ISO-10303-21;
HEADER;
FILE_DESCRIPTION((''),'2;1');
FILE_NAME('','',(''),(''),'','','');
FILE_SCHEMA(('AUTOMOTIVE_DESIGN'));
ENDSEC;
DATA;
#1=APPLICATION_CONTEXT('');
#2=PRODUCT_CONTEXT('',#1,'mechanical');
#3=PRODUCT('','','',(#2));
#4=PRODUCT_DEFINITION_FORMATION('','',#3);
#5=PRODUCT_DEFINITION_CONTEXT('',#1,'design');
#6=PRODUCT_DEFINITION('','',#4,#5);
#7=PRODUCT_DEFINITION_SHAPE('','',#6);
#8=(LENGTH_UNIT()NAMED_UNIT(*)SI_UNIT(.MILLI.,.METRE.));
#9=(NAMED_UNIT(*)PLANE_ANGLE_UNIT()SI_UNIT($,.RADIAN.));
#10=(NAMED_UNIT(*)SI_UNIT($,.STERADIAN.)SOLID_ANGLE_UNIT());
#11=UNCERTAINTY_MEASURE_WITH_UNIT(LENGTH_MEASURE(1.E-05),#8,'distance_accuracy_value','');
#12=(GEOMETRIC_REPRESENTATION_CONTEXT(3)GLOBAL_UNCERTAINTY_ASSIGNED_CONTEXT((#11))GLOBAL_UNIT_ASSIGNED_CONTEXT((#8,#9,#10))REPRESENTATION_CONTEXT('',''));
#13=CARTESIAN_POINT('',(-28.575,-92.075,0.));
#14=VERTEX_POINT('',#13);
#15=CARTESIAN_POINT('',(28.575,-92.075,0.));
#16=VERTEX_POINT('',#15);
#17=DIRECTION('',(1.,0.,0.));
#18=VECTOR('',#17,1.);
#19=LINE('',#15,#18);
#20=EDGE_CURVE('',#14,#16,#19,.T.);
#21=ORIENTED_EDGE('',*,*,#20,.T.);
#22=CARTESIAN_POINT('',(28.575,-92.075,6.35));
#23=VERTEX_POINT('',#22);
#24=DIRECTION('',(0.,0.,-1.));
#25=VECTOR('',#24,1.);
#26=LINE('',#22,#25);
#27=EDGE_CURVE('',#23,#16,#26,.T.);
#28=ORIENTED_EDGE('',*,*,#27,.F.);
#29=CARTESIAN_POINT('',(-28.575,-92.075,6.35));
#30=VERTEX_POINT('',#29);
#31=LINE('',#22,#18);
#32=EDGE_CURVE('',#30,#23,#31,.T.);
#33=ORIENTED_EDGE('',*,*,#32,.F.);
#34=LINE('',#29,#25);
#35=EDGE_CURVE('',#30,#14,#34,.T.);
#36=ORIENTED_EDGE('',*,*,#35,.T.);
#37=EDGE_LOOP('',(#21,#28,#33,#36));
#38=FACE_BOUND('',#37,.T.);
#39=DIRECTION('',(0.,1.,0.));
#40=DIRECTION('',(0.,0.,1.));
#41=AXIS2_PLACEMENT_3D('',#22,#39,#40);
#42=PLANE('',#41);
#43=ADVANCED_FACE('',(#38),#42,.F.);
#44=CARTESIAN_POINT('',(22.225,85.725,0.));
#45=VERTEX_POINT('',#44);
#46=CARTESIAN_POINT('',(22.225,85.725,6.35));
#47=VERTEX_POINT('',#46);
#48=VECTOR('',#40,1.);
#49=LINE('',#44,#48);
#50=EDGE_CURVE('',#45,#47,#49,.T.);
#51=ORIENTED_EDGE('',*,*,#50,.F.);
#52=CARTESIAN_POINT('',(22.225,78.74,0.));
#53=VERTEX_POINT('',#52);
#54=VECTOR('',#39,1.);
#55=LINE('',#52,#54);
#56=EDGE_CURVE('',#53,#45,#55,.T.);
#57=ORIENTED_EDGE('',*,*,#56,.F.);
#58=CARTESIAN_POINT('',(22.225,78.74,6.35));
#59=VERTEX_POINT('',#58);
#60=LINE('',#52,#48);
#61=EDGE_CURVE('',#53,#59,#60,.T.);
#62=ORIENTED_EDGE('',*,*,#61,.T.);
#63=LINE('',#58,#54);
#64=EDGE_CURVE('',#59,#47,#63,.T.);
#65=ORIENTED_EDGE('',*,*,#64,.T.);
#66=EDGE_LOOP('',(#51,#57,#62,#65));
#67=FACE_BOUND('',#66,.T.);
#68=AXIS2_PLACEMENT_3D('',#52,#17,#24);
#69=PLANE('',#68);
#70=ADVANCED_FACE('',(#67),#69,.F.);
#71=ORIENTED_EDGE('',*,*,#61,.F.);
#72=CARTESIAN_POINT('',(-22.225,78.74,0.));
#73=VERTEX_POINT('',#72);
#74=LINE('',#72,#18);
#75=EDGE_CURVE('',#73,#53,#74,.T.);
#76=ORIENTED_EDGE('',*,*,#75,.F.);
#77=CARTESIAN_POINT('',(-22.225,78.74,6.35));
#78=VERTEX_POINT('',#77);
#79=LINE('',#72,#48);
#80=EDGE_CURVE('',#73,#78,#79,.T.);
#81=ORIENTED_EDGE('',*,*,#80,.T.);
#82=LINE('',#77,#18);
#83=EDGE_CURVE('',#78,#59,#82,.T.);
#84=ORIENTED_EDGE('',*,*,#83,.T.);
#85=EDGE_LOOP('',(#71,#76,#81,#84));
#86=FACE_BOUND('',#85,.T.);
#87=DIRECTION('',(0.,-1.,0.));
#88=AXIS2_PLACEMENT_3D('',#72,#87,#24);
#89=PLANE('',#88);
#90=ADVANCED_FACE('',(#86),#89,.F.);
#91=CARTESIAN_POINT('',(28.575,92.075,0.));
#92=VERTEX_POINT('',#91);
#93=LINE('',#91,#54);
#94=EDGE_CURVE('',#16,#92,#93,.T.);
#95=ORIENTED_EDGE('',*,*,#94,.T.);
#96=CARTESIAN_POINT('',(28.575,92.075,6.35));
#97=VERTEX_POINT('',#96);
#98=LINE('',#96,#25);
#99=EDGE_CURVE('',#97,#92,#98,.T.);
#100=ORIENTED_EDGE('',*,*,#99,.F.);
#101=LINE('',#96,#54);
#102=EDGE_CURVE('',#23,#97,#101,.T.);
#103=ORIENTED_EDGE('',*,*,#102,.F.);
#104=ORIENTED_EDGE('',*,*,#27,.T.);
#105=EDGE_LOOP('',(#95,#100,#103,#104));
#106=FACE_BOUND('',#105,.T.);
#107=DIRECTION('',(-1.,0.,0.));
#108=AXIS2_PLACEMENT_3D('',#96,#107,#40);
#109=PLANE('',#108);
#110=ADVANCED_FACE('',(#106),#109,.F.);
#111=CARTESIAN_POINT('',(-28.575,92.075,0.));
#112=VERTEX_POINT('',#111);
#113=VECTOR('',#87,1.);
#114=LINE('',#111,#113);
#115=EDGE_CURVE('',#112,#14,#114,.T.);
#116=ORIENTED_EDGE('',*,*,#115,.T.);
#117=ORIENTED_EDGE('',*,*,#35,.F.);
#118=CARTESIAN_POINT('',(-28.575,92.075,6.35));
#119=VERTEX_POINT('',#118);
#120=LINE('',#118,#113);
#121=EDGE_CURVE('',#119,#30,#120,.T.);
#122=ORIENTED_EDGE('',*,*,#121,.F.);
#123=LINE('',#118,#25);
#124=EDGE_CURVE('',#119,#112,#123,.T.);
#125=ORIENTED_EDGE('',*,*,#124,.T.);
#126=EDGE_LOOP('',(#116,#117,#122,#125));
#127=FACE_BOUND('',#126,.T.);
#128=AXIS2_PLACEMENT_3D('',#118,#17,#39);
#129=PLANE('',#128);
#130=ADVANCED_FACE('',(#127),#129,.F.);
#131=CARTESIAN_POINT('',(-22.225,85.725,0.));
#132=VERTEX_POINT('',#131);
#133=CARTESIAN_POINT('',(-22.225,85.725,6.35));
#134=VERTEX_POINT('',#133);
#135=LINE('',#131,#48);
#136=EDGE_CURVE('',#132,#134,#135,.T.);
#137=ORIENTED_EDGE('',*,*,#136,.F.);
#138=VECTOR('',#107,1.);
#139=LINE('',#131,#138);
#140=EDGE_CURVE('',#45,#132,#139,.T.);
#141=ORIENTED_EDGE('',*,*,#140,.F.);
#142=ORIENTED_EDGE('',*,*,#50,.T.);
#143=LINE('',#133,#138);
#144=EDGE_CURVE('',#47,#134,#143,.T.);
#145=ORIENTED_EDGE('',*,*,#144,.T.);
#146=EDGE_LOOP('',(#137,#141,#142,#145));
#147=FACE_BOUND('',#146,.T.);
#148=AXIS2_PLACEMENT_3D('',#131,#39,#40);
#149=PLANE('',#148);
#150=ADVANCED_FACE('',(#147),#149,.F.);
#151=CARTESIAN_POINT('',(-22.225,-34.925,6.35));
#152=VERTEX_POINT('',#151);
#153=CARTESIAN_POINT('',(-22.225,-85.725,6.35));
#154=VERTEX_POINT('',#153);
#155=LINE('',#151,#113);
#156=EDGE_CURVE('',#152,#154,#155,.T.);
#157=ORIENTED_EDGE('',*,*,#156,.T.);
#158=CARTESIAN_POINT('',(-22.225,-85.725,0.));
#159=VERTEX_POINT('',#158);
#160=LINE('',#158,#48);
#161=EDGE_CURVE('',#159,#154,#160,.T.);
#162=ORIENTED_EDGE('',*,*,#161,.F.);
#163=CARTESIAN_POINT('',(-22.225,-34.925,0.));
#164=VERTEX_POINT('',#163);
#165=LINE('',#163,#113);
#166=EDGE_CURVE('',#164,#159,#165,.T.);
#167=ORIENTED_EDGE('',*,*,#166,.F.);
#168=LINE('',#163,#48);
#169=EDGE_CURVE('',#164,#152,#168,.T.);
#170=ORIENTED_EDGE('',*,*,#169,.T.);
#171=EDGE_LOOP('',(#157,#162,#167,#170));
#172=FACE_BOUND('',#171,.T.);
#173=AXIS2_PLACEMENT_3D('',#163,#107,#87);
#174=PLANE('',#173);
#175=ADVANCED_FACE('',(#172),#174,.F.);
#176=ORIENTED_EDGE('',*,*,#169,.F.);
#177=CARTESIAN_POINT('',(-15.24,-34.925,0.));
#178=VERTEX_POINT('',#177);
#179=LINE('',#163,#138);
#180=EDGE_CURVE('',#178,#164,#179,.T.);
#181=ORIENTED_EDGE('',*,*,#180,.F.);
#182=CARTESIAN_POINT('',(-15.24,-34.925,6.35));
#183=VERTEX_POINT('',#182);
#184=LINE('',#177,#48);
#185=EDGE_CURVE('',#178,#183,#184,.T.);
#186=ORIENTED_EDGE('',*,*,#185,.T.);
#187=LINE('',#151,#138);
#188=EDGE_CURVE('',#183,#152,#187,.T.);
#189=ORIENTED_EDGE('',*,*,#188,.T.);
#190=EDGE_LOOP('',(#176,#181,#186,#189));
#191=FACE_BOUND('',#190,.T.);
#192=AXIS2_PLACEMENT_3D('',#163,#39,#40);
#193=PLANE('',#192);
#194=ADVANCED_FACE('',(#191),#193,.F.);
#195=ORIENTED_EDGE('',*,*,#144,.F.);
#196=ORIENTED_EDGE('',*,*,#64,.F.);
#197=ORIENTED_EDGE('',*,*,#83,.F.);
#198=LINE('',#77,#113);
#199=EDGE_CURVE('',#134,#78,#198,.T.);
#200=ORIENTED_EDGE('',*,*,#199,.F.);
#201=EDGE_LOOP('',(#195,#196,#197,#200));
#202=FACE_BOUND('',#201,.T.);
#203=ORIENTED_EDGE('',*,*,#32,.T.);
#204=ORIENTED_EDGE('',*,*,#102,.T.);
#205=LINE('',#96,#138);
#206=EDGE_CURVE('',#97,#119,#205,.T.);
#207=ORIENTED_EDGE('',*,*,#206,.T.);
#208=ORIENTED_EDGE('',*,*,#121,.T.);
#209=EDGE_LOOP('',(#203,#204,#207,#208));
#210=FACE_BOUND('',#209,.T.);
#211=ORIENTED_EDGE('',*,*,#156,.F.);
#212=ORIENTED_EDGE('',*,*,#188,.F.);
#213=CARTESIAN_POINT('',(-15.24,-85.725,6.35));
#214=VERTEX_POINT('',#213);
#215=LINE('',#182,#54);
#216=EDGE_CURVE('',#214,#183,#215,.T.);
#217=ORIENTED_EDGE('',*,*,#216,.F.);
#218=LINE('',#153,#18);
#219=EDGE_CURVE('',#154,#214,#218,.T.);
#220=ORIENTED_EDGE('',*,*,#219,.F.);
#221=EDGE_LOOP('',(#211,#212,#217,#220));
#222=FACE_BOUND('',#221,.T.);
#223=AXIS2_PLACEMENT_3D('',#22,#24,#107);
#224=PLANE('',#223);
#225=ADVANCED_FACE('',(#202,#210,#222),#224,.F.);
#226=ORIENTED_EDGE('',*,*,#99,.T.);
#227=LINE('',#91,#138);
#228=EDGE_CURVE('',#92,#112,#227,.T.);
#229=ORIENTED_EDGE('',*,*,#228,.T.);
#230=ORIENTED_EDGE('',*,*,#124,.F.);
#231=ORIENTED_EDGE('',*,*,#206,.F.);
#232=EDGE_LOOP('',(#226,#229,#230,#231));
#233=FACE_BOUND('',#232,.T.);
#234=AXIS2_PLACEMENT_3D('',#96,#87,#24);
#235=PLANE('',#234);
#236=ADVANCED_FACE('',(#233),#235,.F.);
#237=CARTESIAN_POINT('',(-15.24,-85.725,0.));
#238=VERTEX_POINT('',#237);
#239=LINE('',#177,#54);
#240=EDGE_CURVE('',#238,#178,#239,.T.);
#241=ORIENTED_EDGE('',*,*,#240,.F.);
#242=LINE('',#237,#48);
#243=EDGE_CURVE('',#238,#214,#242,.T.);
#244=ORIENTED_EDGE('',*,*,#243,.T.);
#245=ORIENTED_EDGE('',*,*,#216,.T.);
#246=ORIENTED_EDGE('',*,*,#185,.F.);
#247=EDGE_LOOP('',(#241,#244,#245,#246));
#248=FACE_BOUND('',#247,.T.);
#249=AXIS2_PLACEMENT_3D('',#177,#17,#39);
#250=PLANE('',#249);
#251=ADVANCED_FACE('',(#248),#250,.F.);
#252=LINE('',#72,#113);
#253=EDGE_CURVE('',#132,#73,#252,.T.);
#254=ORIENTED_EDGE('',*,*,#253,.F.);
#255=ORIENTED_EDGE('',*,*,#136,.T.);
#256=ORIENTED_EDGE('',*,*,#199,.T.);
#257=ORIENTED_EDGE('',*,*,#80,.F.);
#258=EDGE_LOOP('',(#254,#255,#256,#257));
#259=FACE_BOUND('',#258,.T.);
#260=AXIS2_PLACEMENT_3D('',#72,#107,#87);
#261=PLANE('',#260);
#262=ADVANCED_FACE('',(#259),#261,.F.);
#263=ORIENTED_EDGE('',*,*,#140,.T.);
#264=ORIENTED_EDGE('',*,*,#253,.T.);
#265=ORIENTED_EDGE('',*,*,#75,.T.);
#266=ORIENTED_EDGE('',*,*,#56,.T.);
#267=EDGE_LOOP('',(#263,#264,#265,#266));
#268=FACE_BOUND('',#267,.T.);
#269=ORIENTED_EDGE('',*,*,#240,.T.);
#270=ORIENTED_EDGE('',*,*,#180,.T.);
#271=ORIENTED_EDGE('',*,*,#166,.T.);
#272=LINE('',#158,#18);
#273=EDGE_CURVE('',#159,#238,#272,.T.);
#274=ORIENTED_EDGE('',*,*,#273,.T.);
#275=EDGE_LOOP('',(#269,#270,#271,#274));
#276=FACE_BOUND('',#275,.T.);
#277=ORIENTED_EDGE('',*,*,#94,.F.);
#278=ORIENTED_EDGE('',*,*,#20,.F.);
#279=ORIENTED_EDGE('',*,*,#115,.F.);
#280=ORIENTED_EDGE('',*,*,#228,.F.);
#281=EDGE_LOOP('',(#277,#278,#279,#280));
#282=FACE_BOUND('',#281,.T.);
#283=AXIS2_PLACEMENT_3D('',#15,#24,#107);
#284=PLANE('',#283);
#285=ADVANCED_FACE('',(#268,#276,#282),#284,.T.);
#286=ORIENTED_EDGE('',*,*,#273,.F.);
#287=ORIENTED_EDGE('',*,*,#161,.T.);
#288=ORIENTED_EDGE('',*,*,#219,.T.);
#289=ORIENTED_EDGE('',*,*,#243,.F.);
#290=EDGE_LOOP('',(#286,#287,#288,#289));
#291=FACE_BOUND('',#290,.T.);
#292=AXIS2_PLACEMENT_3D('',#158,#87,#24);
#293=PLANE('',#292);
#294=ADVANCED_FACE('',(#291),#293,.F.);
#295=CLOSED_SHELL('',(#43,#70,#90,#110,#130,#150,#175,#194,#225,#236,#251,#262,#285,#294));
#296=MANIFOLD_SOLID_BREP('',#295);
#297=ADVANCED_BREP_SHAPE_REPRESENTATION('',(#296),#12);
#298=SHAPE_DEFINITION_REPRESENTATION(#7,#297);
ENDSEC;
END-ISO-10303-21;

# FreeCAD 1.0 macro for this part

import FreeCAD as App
import Part
import Sketcher

V = App.Vector
Q = App.Units.Quantity

doc = App.newDocument("Part")
params = doc.addObject("Spreadsheet::Sheet", "Params")
for row, (alias, value) in enumerate([
    ("sketch1_width", "2.25 in"),
    ("sketch1_height", "7.25 in"),
    ("pad1_length", "0.25 in"),
    ("sketch2_width", "1.75 in"),
    ("sketch2_height", "0.275 in"),
    ("sketch3_height", "2 in"),
    ("sketch3_width", "0.275 in"),
], start=1):
    params.set(f"A{row}", alias)
    params.set(f"B{row}", "=" + value)
    params.setAlias(f"B{row}", alias)

body = doc.addObject("PartDesign::Body", "Body")

sketch1 = body.newObject("Sketcher::SketchObject", "Sketch")
sketch1.AttachmentSupport = (doc.getObject("XY_Plane"), [""])
sketch1.MapMode = "FlatFace"
sketch1.addGeometry(Part.LineSegment(V(-28.575, 92.075, 0), V(-28.575, -92.075, 0)), False)
sketch1.addGeometry(Part.LineSegment(V(-28.575, -92.075, 0), V(28.575, -92.075, 0)), False)
sketch1.addGeometry(Part.LineSegment(V(28.575, -92.075, 0), V(28.575, 92.075, 0)), False)
sketch1.addGeometry(Part.LineSegment(V(28.575, 92.075, 0), V(-28.575, 92.075, 0)), False)
sketch1.addConstraint(Sketcher.Constraint("Coincident", 0, 2, 1, 1))
sketch1.addConstraint(Sketcher.Constraint("Coincident", 1, 2, 2, 1))
sketch1.addConstraint(Sketcher.Constraint("Coincident", 2, 2, 3, 1))
sketch1.addConstraint(Sketcher.Constraint("Coincident", 3, 2, 0, 1))
sketch1.addConstraint(Sketcher.Constraint("Vertical", 0))
sketch1.addConstraint(Sketcher.Constraint("Horizontal", 1))
sketch1.addConstraint(Sketcher.Constraint("Vertical", 2))
sketch1.addConstraint(Sketcher.Constraint("Horizontal", 3))
sketch1.addConstraint(Sketcher.Constraint("Symmetric", 0, 2, 2, 2, -1, 1))
sketch1.addConstraint(Sketcher.Constraint("DistanceX", 1, 1, 1, 2, Q("2.25 in")))
sketch1.addConstraint(Sketcher.Constraint("DistanceY", 0, 2, 0, 1, Q("7.25 in")))
sketch1.setExpression("Constraints[9]", "Params.sketch1_width")
sketch1.setExpression("Constraints[10]", "Params.sketch1_height")
pad1 = body.newObject("PartDesign::Pad", "Pad")
pad1.Profile = sketch1
pad1.setExpression("Length", "Params.pad1_length")

sketch2 = body.newObject("Sketcher::SketchObject", "Sketch001")
sketch2.AttachmentSupport = (doc.getObject("XY_Plane"), [""])
sketch2.MapMode = "FlatFace"
sketch2.AttachmentOffset = App.Placement(V(0, 0, 0.25 * 25.4), App.Rotation())
sketch2.addGeometry(Part.LineSegment(V(-22.225, 85.725, 0), V(-22.225, 78.74, 0)), False)
sketch2.addGeometry(Part.LineSegment(V(-22.225, 78.74, 0), V(22.225, 78.74, 0)), False)
sketch2.addGeometry(Part.LineSegment(V(22.225, 78.74, 0), V(22.225, 85.725, 0)), False)
sketch2.addGeometry(Part.LineSegment(V(22.225, 85.725, 0), V(-22.225, 85.725, 0)), False)
sketch2.addConstraint(Sketcher.Constraint("Coincident", 0, 2, 1, 1))
sketch2.addConstraint(Sketcher.Constraint("Coincident", 1, 2, 2, 1))
sketch2.addConstraint(Sketcher.Constraint("Coincident", 2, 2, 3, 1))
sketch2.addConstraint(Sketcher.Constraint("Coincident", 3, 2, 0, 1))
sketch2.addConstraint(Sketcher.Constraint("Vertical", 0))
sketch2.addConstraint(Sketcher.Constraint("Horizontal", 1))
sketch2.addConstraint(Sketcher.Constraint("Vertical", 2))
sketch2.addConstraint(Sketcher.Constraint("Horizontal", 3))
sketch2.addConstraint(Sketcher.Constraint("DistanceX", 1, 1, 1, 2, Q("1.75 in")))
sketch2.addConstraint(Sketcher.Constraint("DistanceY", -1, 1, 0, 2, Q("3.1 in")))
sketch2.addConstraint(Sketcher.Constraint("DistanceY", 0, 2, 0, 1, Q("0.275 in")))
sketch2.addConstraint(Sketcher.Constraint("DistanceX", 0, 2, -1, 1, Q("0.875 in")))
sketch2.setExpression("Constraints[8]", "Params.sketch2_width")
sketch2.setExpression("Constraints[10]", "Params.sketch2_height")
pocket1 = body.newObject("PartDesign::Pocket", "Pocket")
pocket1.Profile = sketch2
pocket1.Type = "ThroughAll"

sketch3 = body.newObject("Sketcher::SketchObject", "Sketch002")
sketch3.AttachmentSupport = (doc.getObject("XY_Plane"), [""])
sketch3.MapMode = "FlatFace"
sketch3.AttachmentOffset = App.Placement(V(0, 0, 0.25 * 25.4), App.Rotation())
sketch3.addGeometry(Part.LineSegment(V(-22.225, -34.925, 0), V(-22.225, -85.725, 0)), False)
sketch3.addGeometry(Part.LineSegment(V(-22.225, -85.725, 0), V(-15.24, -85.725, 0)), False)
sketch3.addGeometry(Part.LineSegment(V(-15.24, -85.725, 0), V(-15.24, -34.925, 0)), False)
sketch3.addGeometry(Part.LineSegment(V(-15.24, -34.925, 0), V(-22.225, -34.925, 0)), False)
sketch3.addConstraint(Sketcher.Constraint("Coincident", 0, 2, 1, 1))
sketch3.addConstraint(Sketcher.Constraint("Coincident", 1, 2, 2, 1))
sketch3.addConstraint(Sketcher.Constraint("Coincident", 2, 2, 3, 1))
sketch3.addConstraint(Sketcher.Constraint("Coincident", 3, 2, 0, 1))
sketch3.addConstraint(Sketcher.Constraint("Vertical", 0))
sketch3.addConstraint(Sketcher.Constraint("Horizontal", 1))
sketch3.addConstraint(Sketcher.Constraint("Vertical", 2))
sketch3.addConstraint(Sketcher.Constraint("Horizontal", 3))
sketch3.addConstraint(Sketcher.Constraint("DistanceY", 0, 2, 0, 1, Q("2 in")))
sketch3.addConstraint(Sketcher.Constraint("DistanceX", 1, 2, -1, 1, Q("0.6 in")))
sketch3.addConstraint(Sketcher.Constraint("DistanceX", 1, 1, 1, 2, Q("0.275 in")))
sketch3.addConstraint(Sketcher.Constraint("DistanceY", 0, 2, -1, 1, Q("3.375 in")))
sketch3.setExpression("Constraints[8]", "Params.sketch3_height")
sketch3.setExpression("Constraints[10]", "Params.sketch3_width")
pocket2 = body.newObject("PartDesign::Pocket", "Pocket001")
pocket2.Profile = sketch3
pocket2.Type = "ThroughAll"

doc.recompute()
